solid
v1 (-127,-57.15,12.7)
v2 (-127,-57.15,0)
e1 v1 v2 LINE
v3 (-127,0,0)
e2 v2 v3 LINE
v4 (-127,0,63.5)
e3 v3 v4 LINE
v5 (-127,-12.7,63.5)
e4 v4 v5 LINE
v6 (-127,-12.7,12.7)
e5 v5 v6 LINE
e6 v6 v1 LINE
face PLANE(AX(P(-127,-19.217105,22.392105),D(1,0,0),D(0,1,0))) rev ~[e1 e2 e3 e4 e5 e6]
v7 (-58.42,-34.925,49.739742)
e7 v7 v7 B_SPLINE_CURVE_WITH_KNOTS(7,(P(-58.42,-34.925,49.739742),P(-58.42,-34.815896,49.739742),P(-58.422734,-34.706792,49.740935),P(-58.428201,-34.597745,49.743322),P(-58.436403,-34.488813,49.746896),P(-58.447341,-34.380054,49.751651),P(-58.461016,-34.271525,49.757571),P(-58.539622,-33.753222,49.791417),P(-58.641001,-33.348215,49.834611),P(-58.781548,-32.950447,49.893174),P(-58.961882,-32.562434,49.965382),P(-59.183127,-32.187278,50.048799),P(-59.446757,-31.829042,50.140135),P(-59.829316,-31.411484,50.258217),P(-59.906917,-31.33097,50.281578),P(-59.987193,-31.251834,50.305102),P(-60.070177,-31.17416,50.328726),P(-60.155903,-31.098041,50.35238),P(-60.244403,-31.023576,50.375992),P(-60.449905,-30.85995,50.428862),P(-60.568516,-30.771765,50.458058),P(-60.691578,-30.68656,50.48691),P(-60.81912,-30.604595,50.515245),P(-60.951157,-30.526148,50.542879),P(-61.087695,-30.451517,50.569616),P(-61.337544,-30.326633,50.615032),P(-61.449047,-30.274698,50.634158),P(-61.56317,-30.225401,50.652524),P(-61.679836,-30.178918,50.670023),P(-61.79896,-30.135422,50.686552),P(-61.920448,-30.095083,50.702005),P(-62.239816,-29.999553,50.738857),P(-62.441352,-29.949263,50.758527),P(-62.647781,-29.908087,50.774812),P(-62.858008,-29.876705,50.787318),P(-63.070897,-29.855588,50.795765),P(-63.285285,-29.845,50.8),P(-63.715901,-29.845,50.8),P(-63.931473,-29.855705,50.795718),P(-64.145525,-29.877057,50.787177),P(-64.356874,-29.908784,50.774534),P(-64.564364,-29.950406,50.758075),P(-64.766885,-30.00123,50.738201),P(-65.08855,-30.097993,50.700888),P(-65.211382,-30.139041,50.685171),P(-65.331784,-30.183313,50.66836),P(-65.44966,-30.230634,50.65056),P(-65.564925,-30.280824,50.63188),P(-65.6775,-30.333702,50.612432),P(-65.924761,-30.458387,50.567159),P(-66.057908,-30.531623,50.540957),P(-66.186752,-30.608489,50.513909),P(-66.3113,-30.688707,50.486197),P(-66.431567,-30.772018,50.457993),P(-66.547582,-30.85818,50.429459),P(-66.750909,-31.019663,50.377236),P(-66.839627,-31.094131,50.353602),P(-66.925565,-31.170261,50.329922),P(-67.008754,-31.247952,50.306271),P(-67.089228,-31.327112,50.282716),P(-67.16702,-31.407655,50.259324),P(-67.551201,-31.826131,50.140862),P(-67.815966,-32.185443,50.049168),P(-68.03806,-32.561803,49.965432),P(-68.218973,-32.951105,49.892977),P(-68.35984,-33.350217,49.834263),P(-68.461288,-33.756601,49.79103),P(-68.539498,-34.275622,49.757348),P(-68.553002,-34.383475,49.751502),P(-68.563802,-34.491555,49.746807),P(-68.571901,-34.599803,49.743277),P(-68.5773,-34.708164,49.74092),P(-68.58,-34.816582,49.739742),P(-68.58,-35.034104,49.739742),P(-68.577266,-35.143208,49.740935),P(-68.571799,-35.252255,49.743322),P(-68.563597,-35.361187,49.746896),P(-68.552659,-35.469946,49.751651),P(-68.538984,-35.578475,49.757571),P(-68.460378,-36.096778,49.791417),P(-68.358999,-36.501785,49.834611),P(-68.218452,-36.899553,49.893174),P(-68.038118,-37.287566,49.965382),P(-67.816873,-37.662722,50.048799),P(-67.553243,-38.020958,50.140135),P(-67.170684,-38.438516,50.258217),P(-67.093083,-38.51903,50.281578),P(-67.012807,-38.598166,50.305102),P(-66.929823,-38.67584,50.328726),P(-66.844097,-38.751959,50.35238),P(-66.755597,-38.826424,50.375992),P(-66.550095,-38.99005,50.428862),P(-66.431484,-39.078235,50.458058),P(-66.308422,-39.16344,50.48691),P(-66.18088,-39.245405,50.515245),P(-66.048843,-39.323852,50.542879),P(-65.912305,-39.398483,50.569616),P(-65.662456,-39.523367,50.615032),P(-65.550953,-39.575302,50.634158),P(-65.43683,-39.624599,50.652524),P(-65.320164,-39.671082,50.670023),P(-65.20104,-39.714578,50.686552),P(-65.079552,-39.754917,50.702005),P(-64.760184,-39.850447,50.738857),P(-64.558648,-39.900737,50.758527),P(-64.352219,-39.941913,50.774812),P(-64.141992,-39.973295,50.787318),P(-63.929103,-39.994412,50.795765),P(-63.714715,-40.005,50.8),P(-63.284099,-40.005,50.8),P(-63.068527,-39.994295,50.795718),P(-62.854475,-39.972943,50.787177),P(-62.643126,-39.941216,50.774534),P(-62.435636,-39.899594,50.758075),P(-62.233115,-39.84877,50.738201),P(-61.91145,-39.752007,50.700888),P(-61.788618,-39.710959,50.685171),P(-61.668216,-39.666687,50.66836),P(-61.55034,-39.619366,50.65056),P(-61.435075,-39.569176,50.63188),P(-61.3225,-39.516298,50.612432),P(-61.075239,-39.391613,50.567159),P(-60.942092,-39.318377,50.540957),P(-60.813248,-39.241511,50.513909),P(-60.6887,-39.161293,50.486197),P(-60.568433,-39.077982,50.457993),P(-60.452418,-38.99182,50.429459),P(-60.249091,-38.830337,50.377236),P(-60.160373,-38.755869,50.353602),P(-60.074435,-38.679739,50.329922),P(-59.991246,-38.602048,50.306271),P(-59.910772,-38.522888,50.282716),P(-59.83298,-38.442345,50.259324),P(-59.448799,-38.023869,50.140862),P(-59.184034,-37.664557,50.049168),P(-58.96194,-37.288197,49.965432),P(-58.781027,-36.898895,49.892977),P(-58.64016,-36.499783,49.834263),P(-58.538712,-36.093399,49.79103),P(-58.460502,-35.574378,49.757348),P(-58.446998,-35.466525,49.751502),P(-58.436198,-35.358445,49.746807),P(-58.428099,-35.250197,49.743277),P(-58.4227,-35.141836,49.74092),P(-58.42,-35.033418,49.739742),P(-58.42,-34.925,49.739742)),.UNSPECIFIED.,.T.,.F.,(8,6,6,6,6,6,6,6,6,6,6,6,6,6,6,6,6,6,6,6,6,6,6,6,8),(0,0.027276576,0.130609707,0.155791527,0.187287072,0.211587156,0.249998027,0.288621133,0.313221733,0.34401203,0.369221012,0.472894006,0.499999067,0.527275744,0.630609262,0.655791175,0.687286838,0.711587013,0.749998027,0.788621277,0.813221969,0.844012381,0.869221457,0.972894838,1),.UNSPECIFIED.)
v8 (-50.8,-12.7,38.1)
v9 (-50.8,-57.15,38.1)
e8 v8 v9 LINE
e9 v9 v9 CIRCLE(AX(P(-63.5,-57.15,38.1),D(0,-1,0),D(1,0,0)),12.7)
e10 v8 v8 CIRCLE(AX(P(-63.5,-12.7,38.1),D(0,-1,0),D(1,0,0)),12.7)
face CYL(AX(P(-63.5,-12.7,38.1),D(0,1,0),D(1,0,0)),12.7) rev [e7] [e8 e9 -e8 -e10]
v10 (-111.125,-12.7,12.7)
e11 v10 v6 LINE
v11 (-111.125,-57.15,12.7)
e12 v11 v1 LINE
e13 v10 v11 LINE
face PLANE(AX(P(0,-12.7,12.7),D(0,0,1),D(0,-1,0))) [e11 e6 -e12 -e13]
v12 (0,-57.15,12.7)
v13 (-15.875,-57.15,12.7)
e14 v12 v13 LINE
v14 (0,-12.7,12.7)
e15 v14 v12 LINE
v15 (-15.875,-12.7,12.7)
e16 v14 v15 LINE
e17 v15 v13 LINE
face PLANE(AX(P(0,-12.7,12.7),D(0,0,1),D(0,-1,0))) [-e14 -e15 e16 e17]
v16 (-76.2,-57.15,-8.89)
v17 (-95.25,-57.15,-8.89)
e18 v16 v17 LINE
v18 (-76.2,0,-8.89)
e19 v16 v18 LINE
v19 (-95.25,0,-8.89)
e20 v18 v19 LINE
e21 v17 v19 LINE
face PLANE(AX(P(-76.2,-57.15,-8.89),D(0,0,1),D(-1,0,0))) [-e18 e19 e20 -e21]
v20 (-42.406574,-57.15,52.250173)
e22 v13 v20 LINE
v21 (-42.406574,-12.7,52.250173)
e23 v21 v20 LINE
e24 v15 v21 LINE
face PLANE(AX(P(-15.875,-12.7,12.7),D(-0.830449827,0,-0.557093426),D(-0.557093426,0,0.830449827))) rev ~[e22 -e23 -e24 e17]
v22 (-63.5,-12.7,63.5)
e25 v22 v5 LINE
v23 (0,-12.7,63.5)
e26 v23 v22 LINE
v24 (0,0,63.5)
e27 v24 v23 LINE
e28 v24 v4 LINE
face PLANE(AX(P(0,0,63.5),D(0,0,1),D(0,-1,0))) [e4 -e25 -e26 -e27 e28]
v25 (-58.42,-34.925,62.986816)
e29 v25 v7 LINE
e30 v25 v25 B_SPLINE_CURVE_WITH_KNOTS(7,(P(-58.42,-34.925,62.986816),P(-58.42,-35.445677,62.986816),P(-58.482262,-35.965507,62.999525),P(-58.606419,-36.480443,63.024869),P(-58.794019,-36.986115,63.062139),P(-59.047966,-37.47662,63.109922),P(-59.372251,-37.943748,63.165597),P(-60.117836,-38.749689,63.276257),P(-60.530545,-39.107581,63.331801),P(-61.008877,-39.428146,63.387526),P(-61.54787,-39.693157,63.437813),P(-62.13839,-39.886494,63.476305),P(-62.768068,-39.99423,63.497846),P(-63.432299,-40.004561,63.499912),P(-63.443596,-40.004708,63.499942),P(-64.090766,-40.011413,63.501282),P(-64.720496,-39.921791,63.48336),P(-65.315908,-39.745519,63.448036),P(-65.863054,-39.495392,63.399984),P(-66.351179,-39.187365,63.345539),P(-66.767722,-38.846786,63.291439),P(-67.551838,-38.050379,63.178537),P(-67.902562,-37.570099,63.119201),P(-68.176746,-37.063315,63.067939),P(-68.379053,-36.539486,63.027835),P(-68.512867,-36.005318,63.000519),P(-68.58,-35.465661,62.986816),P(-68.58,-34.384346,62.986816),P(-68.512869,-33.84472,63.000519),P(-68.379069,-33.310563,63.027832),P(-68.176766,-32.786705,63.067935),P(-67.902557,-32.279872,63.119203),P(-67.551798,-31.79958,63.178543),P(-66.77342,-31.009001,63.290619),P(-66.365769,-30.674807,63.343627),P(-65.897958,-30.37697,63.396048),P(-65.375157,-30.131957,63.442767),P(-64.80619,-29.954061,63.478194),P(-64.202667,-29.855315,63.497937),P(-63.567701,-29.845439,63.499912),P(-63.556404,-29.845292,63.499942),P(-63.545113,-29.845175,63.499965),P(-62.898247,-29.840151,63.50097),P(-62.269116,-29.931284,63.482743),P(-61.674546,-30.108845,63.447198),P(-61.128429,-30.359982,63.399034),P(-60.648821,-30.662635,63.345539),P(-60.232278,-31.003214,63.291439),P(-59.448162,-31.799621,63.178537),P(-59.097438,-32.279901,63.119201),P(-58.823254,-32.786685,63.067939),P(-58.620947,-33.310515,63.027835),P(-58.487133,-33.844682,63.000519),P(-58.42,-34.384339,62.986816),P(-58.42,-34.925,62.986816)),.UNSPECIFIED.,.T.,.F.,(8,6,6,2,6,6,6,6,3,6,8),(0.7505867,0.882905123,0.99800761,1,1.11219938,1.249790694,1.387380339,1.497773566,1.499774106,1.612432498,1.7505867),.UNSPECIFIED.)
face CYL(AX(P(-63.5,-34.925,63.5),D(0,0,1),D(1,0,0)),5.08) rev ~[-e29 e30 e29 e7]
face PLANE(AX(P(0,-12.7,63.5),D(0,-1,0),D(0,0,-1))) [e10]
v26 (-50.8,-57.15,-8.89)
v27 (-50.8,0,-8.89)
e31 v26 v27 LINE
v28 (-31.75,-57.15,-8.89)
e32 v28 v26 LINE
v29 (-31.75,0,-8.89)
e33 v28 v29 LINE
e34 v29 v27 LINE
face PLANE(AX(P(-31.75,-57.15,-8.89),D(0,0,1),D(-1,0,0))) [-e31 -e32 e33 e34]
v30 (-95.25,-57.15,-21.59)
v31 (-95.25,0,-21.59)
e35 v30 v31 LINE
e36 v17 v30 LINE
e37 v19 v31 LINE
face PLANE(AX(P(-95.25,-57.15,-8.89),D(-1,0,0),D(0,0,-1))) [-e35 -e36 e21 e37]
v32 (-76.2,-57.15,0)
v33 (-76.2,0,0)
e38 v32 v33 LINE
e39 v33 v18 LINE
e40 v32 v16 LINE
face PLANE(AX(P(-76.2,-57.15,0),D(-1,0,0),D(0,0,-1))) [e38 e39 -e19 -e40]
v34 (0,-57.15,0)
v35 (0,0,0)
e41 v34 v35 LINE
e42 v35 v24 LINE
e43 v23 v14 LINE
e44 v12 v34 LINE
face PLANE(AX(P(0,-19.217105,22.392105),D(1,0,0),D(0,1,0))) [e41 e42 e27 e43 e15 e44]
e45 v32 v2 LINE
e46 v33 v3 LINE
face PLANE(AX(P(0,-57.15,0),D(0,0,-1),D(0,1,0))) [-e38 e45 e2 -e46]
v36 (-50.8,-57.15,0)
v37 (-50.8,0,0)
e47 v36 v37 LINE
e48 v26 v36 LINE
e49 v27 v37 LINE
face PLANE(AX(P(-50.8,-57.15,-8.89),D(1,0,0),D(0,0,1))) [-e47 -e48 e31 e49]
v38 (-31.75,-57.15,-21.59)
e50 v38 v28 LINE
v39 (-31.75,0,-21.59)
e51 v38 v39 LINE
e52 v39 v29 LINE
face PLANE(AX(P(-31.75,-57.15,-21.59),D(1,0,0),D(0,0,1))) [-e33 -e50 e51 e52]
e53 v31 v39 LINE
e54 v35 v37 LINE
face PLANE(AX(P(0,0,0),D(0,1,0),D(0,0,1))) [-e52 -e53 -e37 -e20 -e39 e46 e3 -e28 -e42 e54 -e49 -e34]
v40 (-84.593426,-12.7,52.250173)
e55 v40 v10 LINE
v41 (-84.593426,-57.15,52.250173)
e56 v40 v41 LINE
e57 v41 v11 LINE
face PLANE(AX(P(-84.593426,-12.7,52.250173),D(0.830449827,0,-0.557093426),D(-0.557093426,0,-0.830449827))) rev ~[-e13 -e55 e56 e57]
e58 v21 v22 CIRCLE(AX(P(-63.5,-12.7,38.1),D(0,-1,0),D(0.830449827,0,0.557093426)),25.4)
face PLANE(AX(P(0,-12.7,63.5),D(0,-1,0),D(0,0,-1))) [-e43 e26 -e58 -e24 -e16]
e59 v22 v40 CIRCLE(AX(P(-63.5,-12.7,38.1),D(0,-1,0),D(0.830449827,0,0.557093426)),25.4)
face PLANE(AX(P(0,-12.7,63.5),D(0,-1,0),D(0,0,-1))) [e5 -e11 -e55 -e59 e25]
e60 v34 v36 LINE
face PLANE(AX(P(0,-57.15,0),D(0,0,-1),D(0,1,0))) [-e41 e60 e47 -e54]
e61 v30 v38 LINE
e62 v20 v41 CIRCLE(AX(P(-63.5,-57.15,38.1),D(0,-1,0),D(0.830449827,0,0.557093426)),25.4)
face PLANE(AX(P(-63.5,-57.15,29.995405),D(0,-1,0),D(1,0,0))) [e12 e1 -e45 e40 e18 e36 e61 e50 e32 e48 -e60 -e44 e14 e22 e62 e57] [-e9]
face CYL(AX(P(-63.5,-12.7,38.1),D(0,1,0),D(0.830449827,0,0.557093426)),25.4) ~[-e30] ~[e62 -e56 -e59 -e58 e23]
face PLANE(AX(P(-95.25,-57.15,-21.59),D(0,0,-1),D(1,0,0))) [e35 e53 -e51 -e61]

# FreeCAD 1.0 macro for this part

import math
import FreeCAD as App
import Part
import Sketcher
from FreeCAD import Vector
Q = App.Units.Quantity

doc = App.newDocument("Part")
body = doc.addObject("PartDesign::Body", "Body")

sketch1 = doc.addObject("Sketcher::SketchObject", "Sketch")
body.addObject(sketch1)
sketch1.AttachmentSupport = (doc.YZ_Plane, [""])
sketch1.MapMode = "FlatFace"
sketch1.addGeometry([
    Part.LineSegment(Vector(-57.15, 0, 0), Vector(0, 0, 0)),
    Part.LineSegment(Vector(0, 0, 0), Vector(0, 63.5, 0)),
    Part.LineSegment(Vector(0, 63.5, 0), Vector(-12.7, 63.5, 0)),
    Part.LineSegment(Vector(-12.7, 63.5, 0), Vector(-12.7, 12.7, 0)),
    Part.LineSegment(Vector(-12.7, 12.7, 0), Vector(-57.15, 12.7, 0)),
    Part.LineSegment(Vector(-57.15, 12.7, 0), Vector(-57.15, 0, 0)),
], False)
sketch1.addConstraint([
    Sketcher.Constraint("Coincident", 0, 2, 1, 1),
    Sketcher.Constraint("Coincident", 1, 2, 2, 1),
    Sketcher.Constraint("Coincident", 2, 2, 3, 1),
    Sketcher.Constraint("Coincident", 3, 2, 4, 1),
    Sketcher.Constraint("Coincident", 4, 2, 5, 1),
    Sketcher.Constraint("Coincident", 5, 2, 0, 1),
    Sketcher.Constraint("Horizontal", 0),
    Sketcher.Constraint("Vertical", 1),
    Sketcher.Constraint("Horizontal", 2),
    Sketcher.Constraint("Vertical", 3),
    Sketcher.Constraint("Horizontal", 4),
    Sketcher.Constraint("Vertical", 5),
    Sketcher.Constraint("Coincident", 0, 2, -1, 1),
    Sketcher.Constraint("Equal", 2, 5),
    Sketcher.Constraint("DistanceY", 3, 2, 3, 1, Q("2 in")),
    Sketcher.Constraint("DistanceX", 2, 2, 2, 1, Q("0.5 in")),
    Sketcher.Constraint("DistanceX", 0, 1, 0, 2, Q("2.25 in")),
])
pad1 = doc.addObject("PartDesign::Pad", "Pad")
body.addObject(pad1)
pad1.Profile = sketch1
pad1.Length = Q("5 in")
pad1.Reversed = True

sketch2 = doc.addObject("Sketcher::SketchObject", "Sketch001")
body.addObject(sketch2)
sketch2.AttachmentSupport = (doc.XZ_Plane, [""])
sketch2.MapMode = "FlatFace"
sketch2.AttachmentOffset = App.Placement(Vector(0, 0, 2.25 * 25.4), App.Rotation())
sketch2.addGeometry([
    Part.LineSegment(Vector(-50.8, 0, 0), Vector(-76.2, 0, 0)),
    Part.LineSegment(Vector(-76.2, 0, 0), Vector(-76.2, -8.89, 0)),
    Part.LineSegment(Vector(-76.2, -8.89, 0), Vector(-95.25, -8.89, 0)),
    Part.LineSegment(Vector(-95.25, -8.89, 0), Vector(-95.25, -21.59, 0)),
    Part.LineSegment(Vector(-95.25, -21.59, 0), Vector(-31.75, -21.59, 0)),
    Part.LineSegment(Vector(-31.75, -21.59, 0), Vector(-31.75, -8.89, 0)),
    Part.LineSegment(Vector(-31.75, -8.89, 0), Vector(-50.8, -8.89, 0)),
    Part.LineSegment(Vector(-50.8, -8.89, 0), Vector(-50.8, 0, 0)),
], False)
sketch2.addConstraint([
    Sketcher.Constraint("Coincident", 0, 2, 1, 1),
    Sketcher.Constraint("Coincident", 1, 2, 2, 1),
    Sketcher.Constraint("Coincident", 2, 2, 3, 1),
    Sketcher.Constraint("Coincident", 3, 2, 4, 1),
    Sketcher.Constraint("Coincident", 4, 2, 5, 1),
    Sketcher.Constraint("Coincident", 5, 2, 6, 1),
    Sketcher.Constraint("Coincident", 6, 2, 7, 1),
    Sketcher.Constraint("Coincident", 7, 2, 0, 1),
    Sketcher.Constraint("Horizontal", 0),
    Sketcher.Constraint("Vertical", 1),
    Sketcher.Constraint("Horizontal", 2),
    Sketcher.Constraint("Vertical", 3),
    Sketcher.Constraint("Horizontal", 4),
    Sketcher.Constraint("Vertical", 5),
    Sketcher.Constraint("Horizontal", 6),
    Sketcher.Constraint("Vertical", 7),
    Sketcher.Constraint("PointOnObject", 0, 2, -1),
    Sketcher.Constraint("Horizontal", 2, 2, 5, 2),
    Sketcher.Constraint("Equal", 2, 6),
    Sketcher.Constraint("DistanceX", 0, 2, 0, 1, Q("1 in")),
    Sketcher.Constraint("DistanceX", 4, 1, 4, 2, Q("2.5 in")),
    Sketcher.Constraint("DistanceY", 3, 2, 3, 1, Q("0.5 in")),
    Sketcher.Constraint("DistanceX", 0, 2, -1, 1, Q("3 in")),
    Sketcher.Constraint("DistanceY", 1, 2, 1, 1, Q("0.35 in")),
])
pad2 = doc.addObject("PartDesign::Pad", "Pad001")
body.addObject(pad2)
pad2.Profile = sketch2
pad2.Length = Q("2.25 in")
pad2.Reversed = True

sketch3 = doc.addObject("Sketcher::SketchObject", "Sketch002")
body.addObject(sketch3)
sketch3.AttachmentSupport = (doc.XZ_Plane, [""])
sketch3.MapMode = "FlatFace"
sketch3.AttachmentOffset = App.Placement(Vector(0, 0, 0.5 * 25.4), App.Rotation())
sketch3.addGeometry([
    Part.LineSegment(Vector(-111.125, 12.7, 0), Vector(-15.875, 12.7, 0)),
    Part.LineSegment(Vector(-15.875, 12.7, 0), Vector(-42.406574, 52.250173, 0)),
    Part.ArcOfCircle(Part.Circle(Vector(-63.5, 38.1, 0), Vector(0, 0, 1), 25.4), math.radians(33.855026), math.radians(146.144974)),
    Part.LineSegment(Vector(-84.593426, 52.250173, 0), Vector(-111.125, 12.7, 0)),
    Part.Circle(Vector(-63.5, 38.1, 0), Vector(0, 0, 1), 12.7),
], False)
sketch3.addConstraint([
    Sketcher.Constraint("Coincident", 0, 2, 1, 1),
    Sketcher.Constraint("Tangent", 1, 2, 2, 1),
    Sketcher.Constraint("Tangent", 2, 2, 3, 1),
    Sketcher.Constraint("Coincident", 3, 2, 0, 1),
    Sketcher.Constraint("Horizontal", 0),
    Sketcher.Constraint("Coincident", 4, 3, 2, 3),
    Sketcher.Constraint("Horizontal", 1, 2, 2, 2),
    Sketcher.Constraint("Diameter", 4, Q("1 in")),
    Sketcher.Constraint("Radius", 2, Q("1 in")),
    Sketcher.Constraint("DistanceY", 0, 2, 2, 3, Q("1 in")),
    Sketcher.Constraint("DistanceX", 0, 1, 0, 2, Q("3.75 in")),
    Sketcher.Constraint("DistanceX", 2, 3, -1, 1, Q("2.5 in")),
    Sketcher.Constraint("DistanceY", -1, 1, 2, 3, Q("1.5 in")),
])
pad3 = doc.addObject("PartDesign::Pad", "Pad002")
body.addObject(pad3)
pad3.Profile = sketch3
pad3.Length = Q("1.75 in")

sketch4 = doc.addObject("Sketcher::SketchObject", "Sketch003")
body.addObject(sketch4)
sketch4.AttachmentSupport = (doc.XY_Plane, [""])
sketch4.MapMode = "FlatFace"
sketch4.AttachmentOffset = App.Placement(Vector(0, 0, 2.5 * 25.4), App.Rotation())
sketch4.addGeometry(Part.Circle(Vector(-63.5, -34.925, 0), Vector(0, 0, 1), 5.08), False)
sketch4.addConstraint([
    Sketcher.Constraint("Diameter", 0, Q("0.4 in")),
    Sketcher.Constraint("DistanceX", 0, 3, -1, 1, Q("2.5 in")),
    Sketcher.Constraint("DistanceY", 0, 3, -1, 1, Q("1.375 in")),
])
pocket1 = doc.addObject("PartDesign::Pocket", "Pocket")
body.addObject(pocket1)
pocket1.Profile = sketch4
pocket1.Length = 13.761258

doc.recompute()
